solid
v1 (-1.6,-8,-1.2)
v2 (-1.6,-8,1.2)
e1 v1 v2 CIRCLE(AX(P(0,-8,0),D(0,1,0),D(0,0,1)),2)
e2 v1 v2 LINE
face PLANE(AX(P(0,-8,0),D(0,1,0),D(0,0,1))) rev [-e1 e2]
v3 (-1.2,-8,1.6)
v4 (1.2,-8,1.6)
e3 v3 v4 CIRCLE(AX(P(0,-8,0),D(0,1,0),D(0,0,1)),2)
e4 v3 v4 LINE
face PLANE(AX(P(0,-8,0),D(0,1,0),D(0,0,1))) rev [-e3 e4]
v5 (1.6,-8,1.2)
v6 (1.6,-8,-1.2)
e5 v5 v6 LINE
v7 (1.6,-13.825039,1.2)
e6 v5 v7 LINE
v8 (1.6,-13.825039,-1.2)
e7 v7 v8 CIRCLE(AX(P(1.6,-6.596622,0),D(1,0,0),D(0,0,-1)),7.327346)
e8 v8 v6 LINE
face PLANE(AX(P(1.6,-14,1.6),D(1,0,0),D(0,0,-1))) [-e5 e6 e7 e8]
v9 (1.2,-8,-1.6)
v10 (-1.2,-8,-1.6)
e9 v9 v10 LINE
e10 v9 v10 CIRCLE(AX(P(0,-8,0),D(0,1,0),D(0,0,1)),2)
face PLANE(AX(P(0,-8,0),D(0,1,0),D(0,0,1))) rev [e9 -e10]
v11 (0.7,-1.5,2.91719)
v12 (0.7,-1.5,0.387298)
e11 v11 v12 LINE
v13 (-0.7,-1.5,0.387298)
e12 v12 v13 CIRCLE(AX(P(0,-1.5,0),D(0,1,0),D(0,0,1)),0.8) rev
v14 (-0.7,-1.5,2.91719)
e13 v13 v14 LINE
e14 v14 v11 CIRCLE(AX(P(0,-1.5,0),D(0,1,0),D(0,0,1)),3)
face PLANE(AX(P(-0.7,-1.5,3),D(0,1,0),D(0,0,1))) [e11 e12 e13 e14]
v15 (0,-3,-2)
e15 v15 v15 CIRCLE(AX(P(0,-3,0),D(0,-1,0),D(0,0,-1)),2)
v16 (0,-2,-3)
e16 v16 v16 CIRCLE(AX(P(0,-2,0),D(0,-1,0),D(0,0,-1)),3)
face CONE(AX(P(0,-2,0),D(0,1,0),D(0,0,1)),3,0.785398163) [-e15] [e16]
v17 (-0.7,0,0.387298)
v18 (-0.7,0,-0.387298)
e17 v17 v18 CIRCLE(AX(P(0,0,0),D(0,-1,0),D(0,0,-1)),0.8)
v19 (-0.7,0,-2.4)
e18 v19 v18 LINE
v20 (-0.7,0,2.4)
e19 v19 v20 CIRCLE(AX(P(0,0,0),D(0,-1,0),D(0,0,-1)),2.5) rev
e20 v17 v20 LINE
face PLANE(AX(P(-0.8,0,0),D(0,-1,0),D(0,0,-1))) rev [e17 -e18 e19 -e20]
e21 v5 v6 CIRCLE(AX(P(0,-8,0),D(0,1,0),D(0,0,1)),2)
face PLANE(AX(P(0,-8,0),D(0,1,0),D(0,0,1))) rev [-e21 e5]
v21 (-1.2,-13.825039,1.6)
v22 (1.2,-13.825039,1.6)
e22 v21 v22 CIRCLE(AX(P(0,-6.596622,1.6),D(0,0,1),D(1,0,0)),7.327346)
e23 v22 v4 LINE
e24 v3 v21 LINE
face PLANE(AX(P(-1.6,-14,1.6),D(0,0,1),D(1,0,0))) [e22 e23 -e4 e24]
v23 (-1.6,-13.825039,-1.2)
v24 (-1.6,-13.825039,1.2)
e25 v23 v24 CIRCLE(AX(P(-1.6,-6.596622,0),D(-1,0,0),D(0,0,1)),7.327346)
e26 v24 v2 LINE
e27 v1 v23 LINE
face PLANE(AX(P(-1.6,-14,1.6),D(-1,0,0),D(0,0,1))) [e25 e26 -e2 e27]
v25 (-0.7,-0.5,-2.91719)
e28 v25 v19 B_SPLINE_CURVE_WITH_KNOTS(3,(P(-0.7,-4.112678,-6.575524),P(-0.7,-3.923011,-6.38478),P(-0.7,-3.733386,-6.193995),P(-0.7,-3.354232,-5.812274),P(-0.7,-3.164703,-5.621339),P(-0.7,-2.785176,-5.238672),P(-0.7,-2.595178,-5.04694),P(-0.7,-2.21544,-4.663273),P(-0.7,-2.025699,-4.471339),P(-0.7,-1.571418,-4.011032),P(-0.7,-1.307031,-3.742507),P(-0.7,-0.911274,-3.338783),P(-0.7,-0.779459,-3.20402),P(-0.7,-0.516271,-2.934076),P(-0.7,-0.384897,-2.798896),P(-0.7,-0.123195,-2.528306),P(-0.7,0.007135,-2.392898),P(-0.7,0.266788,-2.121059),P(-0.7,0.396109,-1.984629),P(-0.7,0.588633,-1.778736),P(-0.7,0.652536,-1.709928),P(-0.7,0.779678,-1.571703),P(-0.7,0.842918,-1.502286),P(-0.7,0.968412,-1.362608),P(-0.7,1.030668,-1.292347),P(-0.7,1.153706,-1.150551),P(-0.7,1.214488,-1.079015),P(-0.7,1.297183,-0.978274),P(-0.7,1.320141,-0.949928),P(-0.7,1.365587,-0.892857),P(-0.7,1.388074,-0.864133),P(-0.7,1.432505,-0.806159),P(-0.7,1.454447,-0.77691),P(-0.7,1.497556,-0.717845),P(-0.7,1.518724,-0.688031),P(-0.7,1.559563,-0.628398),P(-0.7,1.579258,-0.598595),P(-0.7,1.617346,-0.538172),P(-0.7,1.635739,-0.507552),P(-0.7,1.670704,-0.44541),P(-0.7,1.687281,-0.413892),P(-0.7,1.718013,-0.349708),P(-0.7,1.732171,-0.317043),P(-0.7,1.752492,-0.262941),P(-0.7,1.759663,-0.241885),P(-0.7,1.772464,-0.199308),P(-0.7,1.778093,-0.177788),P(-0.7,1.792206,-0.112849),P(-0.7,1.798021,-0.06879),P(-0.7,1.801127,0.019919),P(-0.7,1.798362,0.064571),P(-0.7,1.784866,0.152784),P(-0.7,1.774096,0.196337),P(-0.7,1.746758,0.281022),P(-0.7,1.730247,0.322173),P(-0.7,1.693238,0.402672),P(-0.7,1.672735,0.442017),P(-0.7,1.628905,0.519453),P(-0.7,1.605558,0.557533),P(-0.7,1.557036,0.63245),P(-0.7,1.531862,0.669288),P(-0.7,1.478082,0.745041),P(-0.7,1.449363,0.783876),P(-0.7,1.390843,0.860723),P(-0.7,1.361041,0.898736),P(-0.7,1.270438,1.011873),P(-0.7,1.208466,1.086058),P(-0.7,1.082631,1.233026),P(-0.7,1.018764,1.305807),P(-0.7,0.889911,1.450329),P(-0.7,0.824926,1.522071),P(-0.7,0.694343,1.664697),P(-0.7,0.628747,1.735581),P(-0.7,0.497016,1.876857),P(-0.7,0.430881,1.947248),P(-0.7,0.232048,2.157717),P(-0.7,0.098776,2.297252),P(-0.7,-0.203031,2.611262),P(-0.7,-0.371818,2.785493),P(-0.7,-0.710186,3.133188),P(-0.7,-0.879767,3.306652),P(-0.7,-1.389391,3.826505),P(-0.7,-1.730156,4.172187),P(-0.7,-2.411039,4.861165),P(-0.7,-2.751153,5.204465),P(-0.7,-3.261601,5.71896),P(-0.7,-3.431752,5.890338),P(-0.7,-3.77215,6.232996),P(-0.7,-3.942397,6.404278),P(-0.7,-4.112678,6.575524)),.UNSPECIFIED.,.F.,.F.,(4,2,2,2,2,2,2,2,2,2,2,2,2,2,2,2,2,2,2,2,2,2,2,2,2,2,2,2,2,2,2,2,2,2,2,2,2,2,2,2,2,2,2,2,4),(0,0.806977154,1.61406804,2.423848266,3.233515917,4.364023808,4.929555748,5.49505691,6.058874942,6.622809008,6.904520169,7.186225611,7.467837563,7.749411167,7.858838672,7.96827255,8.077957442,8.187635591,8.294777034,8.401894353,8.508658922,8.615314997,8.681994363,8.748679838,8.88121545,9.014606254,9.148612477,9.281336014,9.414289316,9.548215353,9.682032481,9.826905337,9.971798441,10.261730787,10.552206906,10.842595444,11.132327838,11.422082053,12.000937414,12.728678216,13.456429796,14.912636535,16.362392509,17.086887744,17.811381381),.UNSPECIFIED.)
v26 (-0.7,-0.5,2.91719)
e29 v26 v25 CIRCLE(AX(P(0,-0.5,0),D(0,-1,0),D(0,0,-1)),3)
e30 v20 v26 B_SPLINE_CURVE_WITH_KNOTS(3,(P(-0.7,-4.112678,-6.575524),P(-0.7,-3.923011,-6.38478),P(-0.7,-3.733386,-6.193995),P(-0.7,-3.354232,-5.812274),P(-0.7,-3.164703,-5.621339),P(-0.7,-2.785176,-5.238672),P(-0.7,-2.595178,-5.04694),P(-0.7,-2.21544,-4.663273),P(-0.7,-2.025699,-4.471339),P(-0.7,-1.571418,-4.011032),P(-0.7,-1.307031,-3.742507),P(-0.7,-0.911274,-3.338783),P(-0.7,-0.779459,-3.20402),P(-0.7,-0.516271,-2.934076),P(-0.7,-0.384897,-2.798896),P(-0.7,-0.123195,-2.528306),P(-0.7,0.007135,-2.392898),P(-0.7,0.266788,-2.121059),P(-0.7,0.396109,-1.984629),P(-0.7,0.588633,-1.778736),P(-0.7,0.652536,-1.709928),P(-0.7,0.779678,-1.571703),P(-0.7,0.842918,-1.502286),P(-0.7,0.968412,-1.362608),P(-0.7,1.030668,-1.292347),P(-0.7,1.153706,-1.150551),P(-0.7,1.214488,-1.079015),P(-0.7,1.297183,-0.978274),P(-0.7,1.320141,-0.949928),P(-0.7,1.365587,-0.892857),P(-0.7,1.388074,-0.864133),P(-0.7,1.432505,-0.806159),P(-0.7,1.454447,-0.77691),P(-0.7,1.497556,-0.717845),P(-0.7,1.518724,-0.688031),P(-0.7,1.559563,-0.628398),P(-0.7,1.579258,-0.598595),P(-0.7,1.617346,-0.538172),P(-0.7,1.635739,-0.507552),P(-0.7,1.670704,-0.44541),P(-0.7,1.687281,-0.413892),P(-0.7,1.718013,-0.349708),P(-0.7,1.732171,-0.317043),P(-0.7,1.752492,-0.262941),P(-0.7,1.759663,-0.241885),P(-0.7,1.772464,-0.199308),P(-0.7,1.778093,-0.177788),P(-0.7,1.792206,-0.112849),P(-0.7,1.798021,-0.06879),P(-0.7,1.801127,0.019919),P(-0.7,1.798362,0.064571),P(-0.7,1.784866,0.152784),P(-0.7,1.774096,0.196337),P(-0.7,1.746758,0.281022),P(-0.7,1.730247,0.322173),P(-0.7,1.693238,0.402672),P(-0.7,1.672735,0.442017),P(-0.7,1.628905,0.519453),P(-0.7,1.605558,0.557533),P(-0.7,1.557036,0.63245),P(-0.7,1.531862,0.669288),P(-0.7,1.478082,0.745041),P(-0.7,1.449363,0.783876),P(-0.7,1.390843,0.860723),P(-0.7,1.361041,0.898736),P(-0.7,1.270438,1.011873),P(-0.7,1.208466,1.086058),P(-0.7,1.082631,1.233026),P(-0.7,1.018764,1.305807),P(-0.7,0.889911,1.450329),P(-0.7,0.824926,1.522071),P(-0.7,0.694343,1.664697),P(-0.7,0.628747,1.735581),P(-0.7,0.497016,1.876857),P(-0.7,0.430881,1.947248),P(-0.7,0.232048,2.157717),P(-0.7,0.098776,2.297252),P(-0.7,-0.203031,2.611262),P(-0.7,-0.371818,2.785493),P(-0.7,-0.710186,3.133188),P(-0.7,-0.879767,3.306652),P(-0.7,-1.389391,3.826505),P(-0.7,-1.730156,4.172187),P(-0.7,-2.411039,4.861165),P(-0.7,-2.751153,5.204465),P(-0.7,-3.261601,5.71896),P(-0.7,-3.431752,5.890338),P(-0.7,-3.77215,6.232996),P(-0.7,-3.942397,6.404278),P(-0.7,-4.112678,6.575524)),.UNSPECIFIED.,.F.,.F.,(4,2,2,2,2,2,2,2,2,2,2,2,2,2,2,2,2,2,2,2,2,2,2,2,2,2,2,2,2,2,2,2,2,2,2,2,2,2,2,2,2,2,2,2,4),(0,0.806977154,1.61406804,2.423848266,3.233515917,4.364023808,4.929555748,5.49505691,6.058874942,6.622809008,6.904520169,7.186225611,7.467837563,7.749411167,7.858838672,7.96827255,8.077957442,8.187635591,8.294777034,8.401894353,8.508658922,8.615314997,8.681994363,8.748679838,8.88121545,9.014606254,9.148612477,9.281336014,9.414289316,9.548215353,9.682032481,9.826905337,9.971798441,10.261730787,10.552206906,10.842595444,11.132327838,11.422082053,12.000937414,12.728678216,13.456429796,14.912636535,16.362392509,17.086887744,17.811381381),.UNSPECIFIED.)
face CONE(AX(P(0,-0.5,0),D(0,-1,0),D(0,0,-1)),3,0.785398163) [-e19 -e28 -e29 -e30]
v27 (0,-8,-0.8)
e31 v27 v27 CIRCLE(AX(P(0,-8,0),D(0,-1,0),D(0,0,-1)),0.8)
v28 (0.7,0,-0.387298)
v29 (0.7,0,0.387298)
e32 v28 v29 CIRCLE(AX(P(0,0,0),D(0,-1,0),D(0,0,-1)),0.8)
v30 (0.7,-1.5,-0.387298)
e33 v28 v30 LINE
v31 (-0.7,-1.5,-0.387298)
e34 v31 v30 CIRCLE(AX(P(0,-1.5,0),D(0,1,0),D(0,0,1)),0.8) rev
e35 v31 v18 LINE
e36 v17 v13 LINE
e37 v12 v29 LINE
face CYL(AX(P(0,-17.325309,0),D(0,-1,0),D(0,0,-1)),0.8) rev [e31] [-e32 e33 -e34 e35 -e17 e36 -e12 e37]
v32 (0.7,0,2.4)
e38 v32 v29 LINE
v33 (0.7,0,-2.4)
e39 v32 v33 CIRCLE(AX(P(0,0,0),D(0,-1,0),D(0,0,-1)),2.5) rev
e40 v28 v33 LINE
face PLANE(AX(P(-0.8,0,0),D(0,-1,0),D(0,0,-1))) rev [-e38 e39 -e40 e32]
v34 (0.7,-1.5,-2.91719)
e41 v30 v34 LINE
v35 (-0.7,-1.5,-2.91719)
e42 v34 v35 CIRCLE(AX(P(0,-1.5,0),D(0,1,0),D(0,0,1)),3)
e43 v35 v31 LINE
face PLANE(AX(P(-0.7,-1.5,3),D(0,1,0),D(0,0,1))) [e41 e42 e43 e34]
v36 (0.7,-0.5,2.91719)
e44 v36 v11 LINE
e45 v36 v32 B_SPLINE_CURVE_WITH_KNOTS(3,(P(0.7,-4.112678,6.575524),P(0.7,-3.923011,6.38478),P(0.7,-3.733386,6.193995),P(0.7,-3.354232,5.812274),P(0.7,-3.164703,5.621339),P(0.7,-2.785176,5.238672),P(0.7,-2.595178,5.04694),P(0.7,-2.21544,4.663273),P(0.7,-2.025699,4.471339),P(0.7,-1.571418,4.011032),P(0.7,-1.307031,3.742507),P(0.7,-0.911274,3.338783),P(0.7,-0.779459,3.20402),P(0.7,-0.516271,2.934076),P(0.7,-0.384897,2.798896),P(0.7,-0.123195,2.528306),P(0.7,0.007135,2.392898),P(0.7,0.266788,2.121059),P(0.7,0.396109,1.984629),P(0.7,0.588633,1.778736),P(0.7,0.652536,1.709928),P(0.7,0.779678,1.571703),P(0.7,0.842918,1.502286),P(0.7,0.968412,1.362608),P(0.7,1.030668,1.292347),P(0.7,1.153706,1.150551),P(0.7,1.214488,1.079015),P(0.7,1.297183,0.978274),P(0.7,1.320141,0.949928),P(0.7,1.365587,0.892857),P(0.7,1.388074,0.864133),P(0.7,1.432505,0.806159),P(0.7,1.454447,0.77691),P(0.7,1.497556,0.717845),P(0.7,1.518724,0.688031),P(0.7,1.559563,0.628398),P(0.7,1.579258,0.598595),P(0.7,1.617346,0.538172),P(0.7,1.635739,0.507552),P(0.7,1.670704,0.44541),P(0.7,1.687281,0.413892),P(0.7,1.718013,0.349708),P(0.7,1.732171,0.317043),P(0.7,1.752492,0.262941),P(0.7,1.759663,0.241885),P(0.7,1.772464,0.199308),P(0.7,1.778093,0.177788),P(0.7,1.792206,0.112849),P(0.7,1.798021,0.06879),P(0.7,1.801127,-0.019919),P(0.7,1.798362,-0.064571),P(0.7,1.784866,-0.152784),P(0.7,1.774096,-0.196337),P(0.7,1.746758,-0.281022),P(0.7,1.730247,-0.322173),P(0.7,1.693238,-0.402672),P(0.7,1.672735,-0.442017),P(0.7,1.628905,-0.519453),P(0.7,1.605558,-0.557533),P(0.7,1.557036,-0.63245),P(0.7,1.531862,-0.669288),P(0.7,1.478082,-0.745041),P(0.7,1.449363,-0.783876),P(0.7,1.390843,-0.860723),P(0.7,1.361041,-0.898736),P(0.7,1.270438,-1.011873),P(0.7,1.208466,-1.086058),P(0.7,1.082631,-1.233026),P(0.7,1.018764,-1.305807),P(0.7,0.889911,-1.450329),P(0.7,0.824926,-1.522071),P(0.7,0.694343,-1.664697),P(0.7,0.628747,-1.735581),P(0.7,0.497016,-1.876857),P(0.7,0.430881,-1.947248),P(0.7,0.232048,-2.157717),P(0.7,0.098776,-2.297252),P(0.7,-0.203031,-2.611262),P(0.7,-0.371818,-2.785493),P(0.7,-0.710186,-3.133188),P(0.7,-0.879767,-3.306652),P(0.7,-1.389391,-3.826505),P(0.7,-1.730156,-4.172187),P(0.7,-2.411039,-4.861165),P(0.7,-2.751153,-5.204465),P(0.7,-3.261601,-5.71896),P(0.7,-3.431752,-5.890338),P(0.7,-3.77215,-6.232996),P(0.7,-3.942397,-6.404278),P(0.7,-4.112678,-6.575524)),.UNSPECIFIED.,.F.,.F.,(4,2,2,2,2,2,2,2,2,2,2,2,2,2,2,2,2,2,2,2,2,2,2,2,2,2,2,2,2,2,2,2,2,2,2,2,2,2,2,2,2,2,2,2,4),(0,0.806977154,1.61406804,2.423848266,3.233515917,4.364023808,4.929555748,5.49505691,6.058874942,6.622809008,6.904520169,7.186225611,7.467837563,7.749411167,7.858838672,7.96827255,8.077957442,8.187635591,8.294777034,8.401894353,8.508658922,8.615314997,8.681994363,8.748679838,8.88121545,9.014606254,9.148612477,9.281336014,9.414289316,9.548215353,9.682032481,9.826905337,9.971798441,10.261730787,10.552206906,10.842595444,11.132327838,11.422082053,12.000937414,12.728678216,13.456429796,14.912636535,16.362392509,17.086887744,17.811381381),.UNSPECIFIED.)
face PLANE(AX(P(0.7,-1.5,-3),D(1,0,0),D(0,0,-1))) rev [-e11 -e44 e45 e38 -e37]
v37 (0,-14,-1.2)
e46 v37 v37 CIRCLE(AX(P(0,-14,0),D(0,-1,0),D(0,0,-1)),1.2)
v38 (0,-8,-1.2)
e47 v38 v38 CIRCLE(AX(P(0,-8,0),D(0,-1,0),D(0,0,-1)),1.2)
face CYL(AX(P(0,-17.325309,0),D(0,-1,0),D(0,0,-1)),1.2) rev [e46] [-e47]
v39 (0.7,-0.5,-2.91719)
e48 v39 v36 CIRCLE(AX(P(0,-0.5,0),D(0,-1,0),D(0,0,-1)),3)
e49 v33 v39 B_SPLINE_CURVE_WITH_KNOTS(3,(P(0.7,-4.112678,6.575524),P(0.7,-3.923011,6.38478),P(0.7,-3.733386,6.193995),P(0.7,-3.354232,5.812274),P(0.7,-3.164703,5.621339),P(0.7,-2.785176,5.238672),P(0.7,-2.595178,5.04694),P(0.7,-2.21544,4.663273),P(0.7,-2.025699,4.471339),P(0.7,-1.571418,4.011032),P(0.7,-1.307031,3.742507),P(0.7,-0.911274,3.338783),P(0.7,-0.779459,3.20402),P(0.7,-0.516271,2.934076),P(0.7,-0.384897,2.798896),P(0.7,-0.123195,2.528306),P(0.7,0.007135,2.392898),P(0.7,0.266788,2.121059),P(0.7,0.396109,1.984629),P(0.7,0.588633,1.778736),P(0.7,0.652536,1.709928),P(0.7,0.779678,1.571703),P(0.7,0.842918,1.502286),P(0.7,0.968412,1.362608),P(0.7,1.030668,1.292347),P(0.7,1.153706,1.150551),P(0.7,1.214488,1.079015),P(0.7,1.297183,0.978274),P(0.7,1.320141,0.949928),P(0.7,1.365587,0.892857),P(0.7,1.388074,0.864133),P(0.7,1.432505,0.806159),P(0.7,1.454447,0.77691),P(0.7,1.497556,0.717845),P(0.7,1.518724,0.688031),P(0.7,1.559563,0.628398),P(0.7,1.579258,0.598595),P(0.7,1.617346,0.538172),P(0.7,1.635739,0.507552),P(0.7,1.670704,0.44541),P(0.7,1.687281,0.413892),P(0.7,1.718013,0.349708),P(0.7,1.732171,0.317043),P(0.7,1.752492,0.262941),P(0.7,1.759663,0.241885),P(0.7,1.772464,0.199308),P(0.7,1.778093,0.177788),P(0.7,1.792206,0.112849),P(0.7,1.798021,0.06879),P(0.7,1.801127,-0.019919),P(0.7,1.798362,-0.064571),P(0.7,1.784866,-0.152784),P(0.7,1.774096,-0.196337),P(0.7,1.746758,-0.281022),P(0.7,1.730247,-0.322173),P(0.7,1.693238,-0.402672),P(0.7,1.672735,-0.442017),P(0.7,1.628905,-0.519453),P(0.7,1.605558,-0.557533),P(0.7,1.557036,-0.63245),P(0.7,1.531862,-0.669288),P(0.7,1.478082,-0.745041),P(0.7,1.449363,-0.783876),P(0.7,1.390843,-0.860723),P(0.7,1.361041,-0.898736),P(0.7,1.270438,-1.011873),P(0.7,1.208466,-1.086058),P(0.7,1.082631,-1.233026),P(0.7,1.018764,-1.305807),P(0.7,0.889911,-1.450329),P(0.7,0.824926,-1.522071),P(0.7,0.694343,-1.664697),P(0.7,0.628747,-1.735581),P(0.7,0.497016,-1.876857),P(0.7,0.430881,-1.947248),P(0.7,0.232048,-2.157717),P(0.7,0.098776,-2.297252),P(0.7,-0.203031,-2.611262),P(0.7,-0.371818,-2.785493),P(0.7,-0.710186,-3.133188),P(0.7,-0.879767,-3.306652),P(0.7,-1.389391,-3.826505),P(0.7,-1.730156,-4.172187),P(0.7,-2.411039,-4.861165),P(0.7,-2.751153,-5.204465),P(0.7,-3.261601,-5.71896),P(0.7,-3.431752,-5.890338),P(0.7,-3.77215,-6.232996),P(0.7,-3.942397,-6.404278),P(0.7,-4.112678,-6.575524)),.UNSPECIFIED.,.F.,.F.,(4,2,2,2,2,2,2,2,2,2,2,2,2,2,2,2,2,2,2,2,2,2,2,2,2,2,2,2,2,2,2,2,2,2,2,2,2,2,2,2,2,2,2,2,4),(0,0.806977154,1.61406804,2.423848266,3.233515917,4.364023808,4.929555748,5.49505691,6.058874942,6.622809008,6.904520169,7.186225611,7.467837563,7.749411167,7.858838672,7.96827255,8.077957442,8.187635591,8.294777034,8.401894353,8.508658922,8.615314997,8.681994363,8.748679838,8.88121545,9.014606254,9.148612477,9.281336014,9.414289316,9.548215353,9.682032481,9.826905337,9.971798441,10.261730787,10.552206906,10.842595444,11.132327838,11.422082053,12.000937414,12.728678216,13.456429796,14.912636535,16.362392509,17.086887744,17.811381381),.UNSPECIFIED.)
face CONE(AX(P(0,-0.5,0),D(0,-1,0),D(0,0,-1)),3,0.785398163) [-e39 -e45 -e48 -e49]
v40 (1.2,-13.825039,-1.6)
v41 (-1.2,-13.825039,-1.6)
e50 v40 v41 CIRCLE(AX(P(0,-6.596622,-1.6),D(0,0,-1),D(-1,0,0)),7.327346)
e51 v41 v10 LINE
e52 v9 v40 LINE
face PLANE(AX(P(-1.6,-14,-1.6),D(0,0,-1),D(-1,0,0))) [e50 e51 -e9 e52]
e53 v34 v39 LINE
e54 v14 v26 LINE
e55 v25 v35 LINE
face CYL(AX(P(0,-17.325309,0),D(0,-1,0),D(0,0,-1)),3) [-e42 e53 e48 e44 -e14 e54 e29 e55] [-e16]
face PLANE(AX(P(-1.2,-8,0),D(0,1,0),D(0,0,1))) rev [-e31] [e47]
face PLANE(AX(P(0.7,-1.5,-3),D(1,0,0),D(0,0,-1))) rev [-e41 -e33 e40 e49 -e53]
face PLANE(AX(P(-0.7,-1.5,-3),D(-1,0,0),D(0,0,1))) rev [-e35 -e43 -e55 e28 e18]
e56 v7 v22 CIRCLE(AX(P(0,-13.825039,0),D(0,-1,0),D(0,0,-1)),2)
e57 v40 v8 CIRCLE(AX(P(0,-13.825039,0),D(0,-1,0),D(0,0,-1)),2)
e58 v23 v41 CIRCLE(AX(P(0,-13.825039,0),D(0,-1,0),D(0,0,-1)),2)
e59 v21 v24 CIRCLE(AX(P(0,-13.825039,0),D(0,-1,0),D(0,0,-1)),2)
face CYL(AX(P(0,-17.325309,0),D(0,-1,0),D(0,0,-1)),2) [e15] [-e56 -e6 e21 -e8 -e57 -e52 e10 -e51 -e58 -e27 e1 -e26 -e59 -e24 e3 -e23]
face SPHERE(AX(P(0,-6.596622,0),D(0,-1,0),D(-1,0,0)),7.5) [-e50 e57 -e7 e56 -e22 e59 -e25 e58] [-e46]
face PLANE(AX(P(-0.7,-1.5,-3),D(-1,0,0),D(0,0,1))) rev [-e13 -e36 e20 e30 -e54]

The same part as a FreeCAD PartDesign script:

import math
import FreeCAD as App
import Part
import Sketcher
from FreeCAD import Vector
Q = App.Units.Quantity


def edges_at(feature, points):
    """Names of the edges that pass closest to the given points."""
    edges = feature.Shape.Edges
    near = lambda p: min(range(len(edges)), key=lambda i: edges[i].distToShape(Part.Vertex(*p))[0])
    return sorted({f"Edge{near(p) + 1}" for p in points})


def add_polygon(sketch, points):
    """Adds a closed chain of lines whose ends are joined by coincident constraints."""
    first, n = sketch.GeometryCount, len(points)
    for a, b in zip(points, points[1:] + points[:1]):
        sketch.addGeometry(Part.LineSegment(App.Vector(*a, 0), App.Vector(*b, 0)), False)
    for i in range(n):
        sketch.addConstraint(Sketcher.Constraint("Coincident", first + i, 2, first + (i + 1) % n, 1))

doc = App.newDocument("Part")
body = doc.addObject("PartDesign::Body", "Body")

# Sketch on XY plane
sketch1 = body.newObject("Sketcher::SketchObject", "Sketch")
sketch1.AttachmentSupport = (doc.getObject("XY_Plane"), [""])
sketch1.MapMode = "FlatFace"
sketch1.addGeometry([
    Part.LineSegment(Vector(-0.8, 0, 0), Vector(-3, 0, 0)),  # 0
    Part.LineSegment(Vector(-3, 0, 0), Vector(-3, -2, 0)),  # 1
    Part.LineSegment(Vector(-3, -2, 0), Vector(-2, -3, 0)),  # 2
    Part.LineSegment(Vector(-2, -3, 0), Vector(-2, -13.83, 0)),  # 3
    Part.ArcOfCircle(Part.Circle(Vector(0, -6.6, 0), Vector(0, 0, 1), 7.5), math.radians(-105.47), math.radians(-99.21)),  # 4
    Part.LineSegment(Vector(-1.2, -14, 0), Vector(-1.2, -8, 0)),  # 5
    Part.LineSegment(Vector(-1.2, -8, 0), Vector(-0.8, -8, 0)),  # 6
    Part.LineSegment(Vector(-0.8, -8, 0), Vector(-0.8, 0, 0)),  # 7
], False)
sketch1.addConstraint([
    Sketcher.Constraint("Coincident", 0, 2, 1, 1),
    Sketcher.Constraint("Coincident", 1, 2, 2, 1),
    Sketcher.Constraint("Coincident", 2, 2, 3, 1),
    Sketcher.Constraint("Coincident", 3, 2, 4, 1),
    Sketcher.Constraint("Coincident", 4, 2, 5, 1),
    Sketcher.Constraint("Coincident", 5, 2, 6, 1),
    Sketcher.Constraint("Coincident", 6, 2, 7, 1),
    Sketcher.Constraint("Coincident", 7, 2, 0, 1),
    Sketcher.Constraint("Horizontal", 0),
    Sketcher.Constraint("Vertical", 1),
    Sketcher.Constraint("Vertical", 3),
    Sketcher.Constraint("Vertical", 5),
    Sketcher.Constraint("Horizontal", 6),
    Sketcher.Constraint("Vertical", 7),
    Sketcher.Constraint("PointOnObject", 4, 3, -2),
    Sketcher.Constraint("PointOnObject", 0, 2, -1),
    Sketcher.Constraint("Radius", 4, 7.5),
    Sketcher.Constraint("DistanceY", 1, 2, 1, 1, 2.0),
    Sketcher.Constraint("DistanceY", 5, 1, 5, 2, 6.0),
    Sketcher.Constraint("DistanceY", 7, 1, 7, 2, 8.0),
    Sketcher.Constraint("Angle", 2, Q("-45 deg")),
    Sketcher.Constraint("DistanceX", 0, 2, 0, 1, 2.2),
    Sketcher.Constraint("DistanceX", 6, 1, 6, 2, 0.4),
    Sketcher.Constraint("DistanceX", 0, 2, -1, 1, 3.0),
    Sketcher.Constraint("DistanceX", 2, 2, -1, 1, 2.0),
])
revolution = body.newObject("PartDesign::Revolution", "Revolution")
revolution.Profile = sketch1
revolution.ReferenceAxis = (sketch1, ["V_Axis"])
revolution.Angle = 360
doc.recompute()

chamfer = body.newObject("PartDesign::Chamfer", "Chamfer")
chamfer.Base = (revolution, edges_at(revolution, [(0, 0, 3)]))
chamfer.Size = 0.5

# Sketch on XZ plane
sketch2 = body.newObject("Sketcher::SketchObject", "Sketch001")
sketch2.AttachmentSupport = (doc.getObject("XZ_Plane"), [""])
sketch2.MapMode = "FlatFace"
add_polygon(sketch2, [(0.7, 3), (0.7, -3), (-0.7, -3), (-0.7, 3)])  # lines 0-3
sketch2.addConstraint([
    Sketcher.Constraint("Vertical", 0),
    Sketcher.Constraint("Horizontal", 1),
    Sketcher.Constraint("Vertical", 2),
    Sketcher.Constraint("Horizontal", 3),
    Sketcher.Constraint("Symmetric", 0, 2, 2, 2, -1, 1),
    Sketcher.Constraint("DistanceY", 0, 2, 0, 1, 6.0),
    Sketcher.Constraint("DistanceX", 1, 2, 1, 1, 1.4),
])
pocket1 = body.newObject("PartDesign::Pocket", "Pocket")
pocket1.Profile = sketch2
pocket1.Length = 1.5
pocket1.Reversed = True

# Sketch on XZ plane
sketch3 = body.newObject("Sketcher::SketchObject", "Sketch002")
sketch3.AttachmentSupport = (doc.getObject("XZ_Plane"), [""])
sketch3.MapMode = "FlatFace"
sketch3.AttachmentOffset = App.Placement(Vector(0, 0, 8), App.Rotation())
add_polygon(sketch3, [(5.6, 5.6), (5.6, -5.6), (-5.6, -5.6), (-5.6, 5.6)])  # lines 0-3
add_polygon(sketch3, [(-1.6, -1.6), (1.6, -1.6), (1.6, 1.6), (-1.6, 1.6)])  # lines 4-7
sketch3.addConstraint([
    Sketcher.Constraint("Vertical", 0),
    Sketcher.Constraint("Horizontal", 1),
    Sketcher.Constraint("Vertical", 2),
    Sketcher.Constraint("Horizontal", 3),
    Sketcher.Constraint("Horizontal", 4),
    Sketcher.Constraint("Vertical", 5),
    Sketcher.Constraint("Horizontal", 6),
    Sketcher.Constraint("Vertical", 7),
    Sketcher.Constraint("Symmetric", 0, 2, 2, 2, -1, 1),
    Sketcher.Constraint("Symmetric", 4, 2, 6, 2, -1, 1),
    Sketcher.Constraint("Equal", 3, 0),
    Sketcher.Constraint("Equal", 6, 5),
    Sketcher.Constraint("DistanceX", 4, 1, 4, 2, 3.2),
    Sketcher.Constraint("DistanceX", 1, 2, 1, 1, 11.274),
])
pocket2 = body.newObject("PartDesign::Pocket", "Pocket001")
pocket2.Profile = sketch3
pocket2.Type = "ThroughAll"
pocket2.Reversed = True

doc.recompute()
